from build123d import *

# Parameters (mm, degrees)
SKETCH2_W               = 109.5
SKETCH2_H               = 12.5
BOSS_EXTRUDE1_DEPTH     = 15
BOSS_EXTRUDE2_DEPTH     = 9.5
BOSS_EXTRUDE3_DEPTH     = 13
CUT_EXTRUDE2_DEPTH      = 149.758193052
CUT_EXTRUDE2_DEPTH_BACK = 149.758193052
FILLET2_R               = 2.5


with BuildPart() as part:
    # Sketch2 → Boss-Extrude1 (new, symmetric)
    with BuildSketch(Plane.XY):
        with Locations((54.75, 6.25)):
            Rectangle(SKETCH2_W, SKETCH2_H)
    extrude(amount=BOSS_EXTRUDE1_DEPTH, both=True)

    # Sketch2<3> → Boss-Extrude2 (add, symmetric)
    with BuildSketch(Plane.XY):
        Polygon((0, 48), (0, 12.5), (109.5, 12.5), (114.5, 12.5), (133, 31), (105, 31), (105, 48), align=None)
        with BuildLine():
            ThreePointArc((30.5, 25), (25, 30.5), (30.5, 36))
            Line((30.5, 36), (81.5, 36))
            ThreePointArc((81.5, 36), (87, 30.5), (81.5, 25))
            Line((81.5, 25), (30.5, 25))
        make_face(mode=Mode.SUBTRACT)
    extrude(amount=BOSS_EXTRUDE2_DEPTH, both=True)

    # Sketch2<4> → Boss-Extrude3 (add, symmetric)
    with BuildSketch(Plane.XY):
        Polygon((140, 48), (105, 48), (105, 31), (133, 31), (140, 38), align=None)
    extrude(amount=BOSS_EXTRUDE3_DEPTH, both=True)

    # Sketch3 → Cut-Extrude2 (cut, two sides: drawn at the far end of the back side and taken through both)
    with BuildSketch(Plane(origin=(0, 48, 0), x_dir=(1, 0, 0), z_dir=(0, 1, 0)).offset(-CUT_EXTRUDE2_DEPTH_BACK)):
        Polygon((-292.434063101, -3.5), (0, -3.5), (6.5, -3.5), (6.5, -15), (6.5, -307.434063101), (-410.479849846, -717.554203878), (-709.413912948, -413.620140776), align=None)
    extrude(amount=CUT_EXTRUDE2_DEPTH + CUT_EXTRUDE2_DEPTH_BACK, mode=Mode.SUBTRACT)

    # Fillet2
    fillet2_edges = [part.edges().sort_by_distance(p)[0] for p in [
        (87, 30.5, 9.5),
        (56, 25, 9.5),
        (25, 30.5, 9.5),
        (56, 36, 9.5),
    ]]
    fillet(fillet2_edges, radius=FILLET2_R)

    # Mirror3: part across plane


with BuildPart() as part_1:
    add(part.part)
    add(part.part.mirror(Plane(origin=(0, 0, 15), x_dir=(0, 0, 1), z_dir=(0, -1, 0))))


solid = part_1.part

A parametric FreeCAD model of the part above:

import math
import FreeCAD as App
import Part
import Sketcher
Q = App.Units.Quantity


def edges_at(feature, points):
    """Names of the edges that pass closest to the given points."""
    edges = feature.Shape.Edges
    near = lambda p: min(range(len(edges)), key=lambda i: edges[i].distToShape(Part.Vertex(*p))[0])
    return sorted({f"Edge{near(p) + 1}" for p in points})


def add_polygon(sketch, points):
    """Adds a closed chain of lines whose ends are joined by coincident constraints."""
    first, n = sketch.GeometryCount, len(points)
    for a, b in zip(points, points[1:] + points[:1]):
        sketch.addGeometry(Part.LineSegment(App.Vector(*a, 0), App.Vector(*b, 0)), False)
    for i in range(n):
        sketch.addConstraint(Sketcher.Constraint("Coincident", first + i, 2, first + (i + 1) % n, 1))

doc = App.newDocument("Part")
body = doc.addObject("PartDesign::Body", "Body")

# Sketch on XY plane
sketch1 = body.newObject("Sketcher::SketchObject", "Sketch")
sketch1.AttachmentSupport = (doc.getObject("XY_Plane"), [""])
sketch1.MapMode = "FlatFace"
add_polygon(sketch1, [(0, 12.5), (0, 0), (109.5, 0), (109.5, 12.5)])  # lines 0-3
sketch1.addConstraint(Sketcher.Constraint("Vertical", 0))
sketch1.addConstraint(Sketcher.Constraint("Horizontal", 1))
sketch1.addConstraint(Sketcher.Constraint("Vertical", 2))
sketch1.addConstraint(Sketcher.Constraint("Horizontal", 3))
sketch1.addConstraint(Sketcher.Constraint("Coincident", 0, 2, -1, 1))
sketch1.addConstraint(Sketcher.Constraint("DistanceX", 1, 1, 1, 2, Q("109.5 mm")))
sketch1.addConstraint(Sketcher.Constraint("DistanceY", 0, 2, 0, 1, Q("12.5 mm")))
pad1 = body.newObject("PartDesign::Pad", "Pad")
pad1.Profile = sketch1
pad1.Length = 30
pad1.Midplane = True

# Sketch on XY plane
sketch2 = body.newObject("Sketcher::SketchObject", "Sketch001")
sketch2.AttachmentSupport = (doc.getObject("XY_Plane"), [""])
sketch2.MapMode = "FlatFace"
add_polygon(sketch2, [(0, 48), (0, 12.5), (114.5, 12.5), (133, 31), (105, 31), (105, 48)])  # lines 0-5
sketch2.addGeometry(Part.LineSegment(App.Vector(81.5, 25, 0), App.Vector(30.5, 25, 0)), False)  # 6
sketch2.addGeometry(Part.ArcOfCircle(Part.Circle(App.Vector(30.5, 30.5, 0), App.Vector(0, 0, 1), 5.5), math.radians(90), math.radians(270)), False)  # 7
sketch2.addGeometry(Part.LineSegment(App.Vector(30.5, 36, 0), App.Vector(81.5, 36, 0)), False)  # 8
sketch2.addGeometry(Part.ArcOfCircle(Part.Circle(App.Vector(81.5, 30.5, 0), App.Vector(0, 0, 1), 5.5), math.radians(-90), math.radians(90)), False)  # 9
sketch2.addConstraint(Sketcher.Constraint("Tangent", 6, 2, 7, 2))
sketch2.addConstraint(Sketcher.Constraint("Tangent", 7, 1, 8, 1))
sketch2.addConstraint(Sketcher.Constraint("Tangent", 8, 2, 9, 2))
sketch2.addConstraint(Sketcher.Constraint("Tangent", 9, 1, 6, 1))
sketch2.addConstraint(Sketcher.Constraint("Vertical", 0))
sketch2.addConstraint(Sketcher.Constraint("Horizontal", 1))
sketch2.addConstraint(Sketcher.Constraint("Horizontal", 3))
sketch2.addConstraint(Sketcher.Constraint("Vertical", 4))
sketch2.addConstraint(Sketcher.Constraint("Horizontal", 5))
sketch2.addConstraint(Sketcher.Constraint("Horizontal", 6))
sketch2.addConstraint(Sketcher.Constraint("Horizontal", 8))
sketch2.addConstraint(Sketcher.Constraint("PointOnObject", 0, 2, -2))
sketch2.addConstraint(Sketcher.Constraint("Radius", 7, Q("5.5 mm")))
sketch2.addConstraint(Sketcher.Constraint("DistanceX", 3, 2, 3, 1, Q("28 mm")))
sketch2.addConstraint(Sketcher.Constraint("DistanceX", 5, 2, 5, 1, Q("105 mm")))
sketch2.addConstraint(Sketcher.Constraint("DistanceX", 6, 2, 6, 1, Q("51 mm")))
sketch2.addConstraint(Sketcher.Constraint("DistanceY", 4, 1, 4, 2, Q("17 mm")))
sketch2.addConstraint(Sketcher.Constraint("Angle", 2, Q("45 deg")))
sketch2.addConstraint(Sketcher.Constraint("DistanceX", 1, 1, 1, 2, Q("114.5 mm")))
sketch2.addConstraint(Sketcher.Constraint("DistanceY", -1, 1, 2, 2, Q("31 mm")))
sketch2.addConstraint(Sketcher.Constraint("DistanceY", -1, 1, 6, 2, Q("25 mm")))
sketch2.addConstraint(Sketcher.Constraint("DistanceX", 9, 3, 1, 2, Q("33 mm")))
pad2 = body.newObject("PartDesign::Pad", "Pad001")
pad2.Profile = sketch2
pad2.Length = 19
pad2.Midplane = True

# Sketch on XY plane
sketch3 = body.newObject("Sketcher::SketchObject", "Sketch002")
sketch3.AttachmentSupport = (doc.getObject("XY_Plane"), [""])
sketch3.MapMode = "FlatFace"
add_polygon(sketch3, [(140, 48), (105, 48), (105, 31), (133, 31), (140, 38)])  # lines 0-4
sketch3.addConstraint(Sketcher.Constraint("Horizontal", 0))
sketch3.addConstraint(Sketcher.Constraint("Vertical", 1))
sketch3.addConstraint(Sketcher.Constraint("Horizontal", 2))
sketch3.addConstraint(Sketcher.Constraint("Vertical", 4))
sketch3.addConstraint(Sketcher.Constraint("DistanceX", 0, 2, 0, 1, Q("35 mm")))
sketch3.addConstraint(Sketcher.Constraint("DistanceX", 2, 1, 2, 2, Q("28 mm")))
sketch3.addConstraint(Sketcher.Constraint("DistanceY", 1, 2, 1, 1, Q("17 mm")))
sketch3.addConstraint(Sketcher.Constraint("DistanceY", 4, 1, 4, 2, Q("10 mm")))
sketch3.addConstraint(Sketcher.Constraint("DistanceX", -1, 1, 0, 2, Q("105 mm")))
sketch3.addConstraint(Sketcher.Constraint("DistanceY", -1, 1, 0, 2, Q("48 mm")))
pad3 = body.newObject("PartDesign::Pad", "Pad002")
pad3.Profile = sketch3
pad3.Length = 26
pad3.Midplane = True

# Sketch on XZ plane
sketch4 = body.newObject("Sketcher::SketchObject", "Sketch003")
sketch4.AttachmentSupport = (doc.getObject("XZ_Plane"), [""])
sketch4.MapMode = "FlatFace"
sketch4.AttachmentOffset = App.Placement(App.Vector(0, 0, -48), App.Rotation())
add_polygon(sketch4, [(6.5, 3.5), (-292.434063, 3.5), (-709.413913, 413.620141), (-410.47985, 717.554204), (6.5, 307.434063)])  # lines 0-4
sketch4.addConstraint(Sketcher.Constraint("Horizontal", 0))
sketch4.addConstraint(Sketcher.Constraint("Vertical", 4))
sketch4.addConstraint(Sketcher.Constraint("Perpendicular", 1, 2))
sketch4.addConstraint(Sketcher.Constraint("Perpendicular", 2, 3))
sketch4.addConstraint(Sketcher.Constraint("Equal", 1, 3))
sketch4.addConstraint(Sketcher.Constraint("DistanceY", -1, 1, 0, 2, Q("3.5 mm")))
sketch4.addConstraint(Sketcher.Constraint("DistanceX", -1, 1, 3, 2, Q("6.5 mm")))
sketch4.addConstraint(Sketcher.Constraint("Distance", 2, Q("426.306801 mm")))
sketch4.addConstraint(Sketcher.Constraint("DistanceX", 0, 2, 0, 1, Q("298.934063 mm")))
sketch4.addConstraint(Sketcher.Constraint("DistanceY", -1, 1, 1, 2, Q("413.620141 mm")))
pocket1 = body.newObject("PartDesign::Pocket", "Pocket")
pocket1.Profile = sketch4
pocket1.Type = "ThroughAll"
pocket1.Midplane = True
doc.recompute()

fillet = body.newObject("PartDesign::Fillet", "Fillet")
fillet.Base = (pocket1, edges_at(pocket1, [
    (87, 30.5, 9.5),
    (56, 25, 9.5),
    (25, 30.5, 9.5),
    (56, 36, 9.5),
]))
fillet.Radius = 2.5
body2 = doc.addObject("PartDesign::Body", "Body001")
doc.recompute()

body2.BaseFeature = body
doc.recompute()

mirroring = doc.addObject("Part::Mirroring", "Mirroring")
mirroring.Source = body
mirroring.Base = App.Vector(0, 0, 15)
mirroring.Normal = App.Vector(0, -1, 0)
body3 = doc.addObject("PartDesign::Body", "Body002")
body3.BaseFeature = mirroring
boolean = body2.newObject("PartDesign::Boolean", "Boolean")
boolean.Type = "Fuse"
boolean.addObjects([body3])
doc.recompute()
mirroring.Visibility = False

doc.recompute()
